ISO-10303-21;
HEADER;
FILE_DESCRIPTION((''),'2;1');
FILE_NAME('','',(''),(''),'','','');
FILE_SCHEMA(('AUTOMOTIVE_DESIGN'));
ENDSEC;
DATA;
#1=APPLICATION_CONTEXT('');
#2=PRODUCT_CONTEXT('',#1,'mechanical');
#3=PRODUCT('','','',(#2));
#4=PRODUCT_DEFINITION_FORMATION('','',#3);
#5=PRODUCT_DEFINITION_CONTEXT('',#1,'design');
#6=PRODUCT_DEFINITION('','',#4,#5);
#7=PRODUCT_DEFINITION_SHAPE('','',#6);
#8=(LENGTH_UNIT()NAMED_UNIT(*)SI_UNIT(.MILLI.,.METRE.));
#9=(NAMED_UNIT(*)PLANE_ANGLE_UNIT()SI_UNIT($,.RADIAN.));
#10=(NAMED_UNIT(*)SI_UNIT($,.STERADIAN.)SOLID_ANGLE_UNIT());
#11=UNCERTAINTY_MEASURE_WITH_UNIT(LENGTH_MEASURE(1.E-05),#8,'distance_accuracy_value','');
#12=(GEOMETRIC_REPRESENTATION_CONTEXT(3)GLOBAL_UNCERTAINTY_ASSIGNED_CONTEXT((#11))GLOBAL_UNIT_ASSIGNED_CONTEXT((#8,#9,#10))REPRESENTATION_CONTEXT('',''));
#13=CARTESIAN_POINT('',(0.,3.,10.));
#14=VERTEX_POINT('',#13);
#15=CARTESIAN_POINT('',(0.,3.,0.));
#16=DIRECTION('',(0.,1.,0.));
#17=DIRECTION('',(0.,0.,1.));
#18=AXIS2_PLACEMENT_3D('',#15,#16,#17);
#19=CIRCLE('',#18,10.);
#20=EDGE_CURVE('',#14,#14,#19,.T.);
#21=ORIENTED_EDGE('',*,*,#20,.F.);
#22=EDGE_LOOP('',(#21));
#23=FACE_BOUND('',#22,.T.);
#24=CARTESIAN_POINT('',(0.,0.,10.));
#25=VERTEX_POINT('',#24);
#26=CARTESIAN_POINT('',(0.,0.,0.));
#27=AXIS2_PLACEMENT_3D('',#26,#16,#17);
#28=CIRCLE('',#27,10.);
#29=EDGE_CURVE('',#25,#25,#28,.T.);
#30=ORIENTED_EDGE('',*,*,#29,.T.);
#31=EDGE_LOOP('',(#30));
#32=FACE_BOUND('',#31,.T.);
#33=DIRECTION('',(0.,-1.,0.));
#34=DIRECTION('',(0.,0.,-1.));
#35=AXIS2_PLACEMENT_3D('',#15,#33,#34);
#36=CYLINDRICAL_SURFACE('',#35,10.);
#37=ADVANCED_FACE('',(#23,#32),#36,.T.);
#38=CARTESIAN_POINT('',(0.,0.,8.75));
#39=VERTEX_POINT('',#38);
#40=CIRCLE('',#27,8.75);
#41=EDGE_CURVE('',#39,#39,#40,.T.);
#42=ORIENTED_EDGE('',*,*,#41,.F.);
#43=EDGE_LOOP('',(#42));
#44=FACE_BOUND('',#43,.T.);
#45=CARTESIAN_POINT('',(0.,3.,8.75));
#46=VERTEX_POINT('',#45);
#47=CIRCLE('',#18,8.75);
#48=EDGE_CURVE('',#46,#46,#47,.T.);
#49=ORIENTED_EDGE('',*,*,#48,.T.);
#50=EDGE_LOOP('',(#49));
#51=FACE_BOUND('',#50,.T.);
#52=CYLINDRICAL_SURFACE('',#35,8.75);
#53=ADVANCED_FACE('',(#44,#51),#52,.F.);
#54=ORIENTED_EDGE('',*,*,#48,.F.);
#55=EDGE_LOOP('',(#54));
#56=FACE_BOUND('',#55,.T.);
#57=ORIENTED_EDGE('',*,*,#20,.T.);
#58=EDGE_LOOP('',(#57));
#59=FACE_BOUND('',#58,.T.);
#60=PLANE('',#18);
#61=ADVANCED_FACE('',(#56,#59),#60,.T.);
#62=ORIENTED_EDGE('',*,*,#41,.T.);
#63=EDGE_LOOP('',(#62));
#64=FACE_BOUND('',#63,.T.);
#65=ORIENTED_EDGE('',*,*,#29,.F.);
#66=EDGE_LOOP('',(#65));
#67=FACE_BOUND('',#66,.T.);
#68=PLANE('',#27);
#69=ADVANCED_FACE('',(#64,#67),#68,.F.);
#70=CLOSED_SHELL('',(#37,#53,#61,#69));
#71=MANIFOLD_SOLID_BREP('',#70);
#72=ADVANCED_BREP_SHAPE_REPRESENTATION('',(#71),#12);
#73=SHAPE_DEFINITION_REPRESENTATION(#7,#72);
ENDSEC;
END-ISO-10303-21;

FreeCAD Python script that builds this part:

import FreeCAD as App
import Part
import Sketcher

doc = App.newDocument("Part")
body = doc.addObject("PartDesign::Body", "Body")

# Sketch on XZ plane
sketch1 = body.newObject("Sketcher::SketchObject", "Sketch")
sketch1.AttachmentSupport = (doc.getObject("XZ_Plane"), [""])
sketch1.MapMode = "FlatFace"
sketch1.addGeometry(Part.Circle(App.Vector(0, 0, 0), App.Vector(0, 0, 1), 10), False)
sketch1.addGeometry(Part.Circle(App.Vector(0, 0, 0), App.Vector(0, 0, 1), 9), False)
sketch1.addConstraint(Sketcher.Constraint("Coincident", 0, 3, -1, 1))
sketch1.addConstraint(Sketcher.Constraint("Coincident", 1, 3, -1, 1))
sketch1.addConstraint(Sketcher.Constraint("Diameter", 0, 20.0))
sketch1.addConstraint(Sketcher.Constraint("Diameter", 1, 17.5))
pad1 = body.newObject("PartDesign::Pad", "Pad")
pad1.Profile = sketch1
pad1.Length = 3
pad1.Reversed = True

doc.recompute()
